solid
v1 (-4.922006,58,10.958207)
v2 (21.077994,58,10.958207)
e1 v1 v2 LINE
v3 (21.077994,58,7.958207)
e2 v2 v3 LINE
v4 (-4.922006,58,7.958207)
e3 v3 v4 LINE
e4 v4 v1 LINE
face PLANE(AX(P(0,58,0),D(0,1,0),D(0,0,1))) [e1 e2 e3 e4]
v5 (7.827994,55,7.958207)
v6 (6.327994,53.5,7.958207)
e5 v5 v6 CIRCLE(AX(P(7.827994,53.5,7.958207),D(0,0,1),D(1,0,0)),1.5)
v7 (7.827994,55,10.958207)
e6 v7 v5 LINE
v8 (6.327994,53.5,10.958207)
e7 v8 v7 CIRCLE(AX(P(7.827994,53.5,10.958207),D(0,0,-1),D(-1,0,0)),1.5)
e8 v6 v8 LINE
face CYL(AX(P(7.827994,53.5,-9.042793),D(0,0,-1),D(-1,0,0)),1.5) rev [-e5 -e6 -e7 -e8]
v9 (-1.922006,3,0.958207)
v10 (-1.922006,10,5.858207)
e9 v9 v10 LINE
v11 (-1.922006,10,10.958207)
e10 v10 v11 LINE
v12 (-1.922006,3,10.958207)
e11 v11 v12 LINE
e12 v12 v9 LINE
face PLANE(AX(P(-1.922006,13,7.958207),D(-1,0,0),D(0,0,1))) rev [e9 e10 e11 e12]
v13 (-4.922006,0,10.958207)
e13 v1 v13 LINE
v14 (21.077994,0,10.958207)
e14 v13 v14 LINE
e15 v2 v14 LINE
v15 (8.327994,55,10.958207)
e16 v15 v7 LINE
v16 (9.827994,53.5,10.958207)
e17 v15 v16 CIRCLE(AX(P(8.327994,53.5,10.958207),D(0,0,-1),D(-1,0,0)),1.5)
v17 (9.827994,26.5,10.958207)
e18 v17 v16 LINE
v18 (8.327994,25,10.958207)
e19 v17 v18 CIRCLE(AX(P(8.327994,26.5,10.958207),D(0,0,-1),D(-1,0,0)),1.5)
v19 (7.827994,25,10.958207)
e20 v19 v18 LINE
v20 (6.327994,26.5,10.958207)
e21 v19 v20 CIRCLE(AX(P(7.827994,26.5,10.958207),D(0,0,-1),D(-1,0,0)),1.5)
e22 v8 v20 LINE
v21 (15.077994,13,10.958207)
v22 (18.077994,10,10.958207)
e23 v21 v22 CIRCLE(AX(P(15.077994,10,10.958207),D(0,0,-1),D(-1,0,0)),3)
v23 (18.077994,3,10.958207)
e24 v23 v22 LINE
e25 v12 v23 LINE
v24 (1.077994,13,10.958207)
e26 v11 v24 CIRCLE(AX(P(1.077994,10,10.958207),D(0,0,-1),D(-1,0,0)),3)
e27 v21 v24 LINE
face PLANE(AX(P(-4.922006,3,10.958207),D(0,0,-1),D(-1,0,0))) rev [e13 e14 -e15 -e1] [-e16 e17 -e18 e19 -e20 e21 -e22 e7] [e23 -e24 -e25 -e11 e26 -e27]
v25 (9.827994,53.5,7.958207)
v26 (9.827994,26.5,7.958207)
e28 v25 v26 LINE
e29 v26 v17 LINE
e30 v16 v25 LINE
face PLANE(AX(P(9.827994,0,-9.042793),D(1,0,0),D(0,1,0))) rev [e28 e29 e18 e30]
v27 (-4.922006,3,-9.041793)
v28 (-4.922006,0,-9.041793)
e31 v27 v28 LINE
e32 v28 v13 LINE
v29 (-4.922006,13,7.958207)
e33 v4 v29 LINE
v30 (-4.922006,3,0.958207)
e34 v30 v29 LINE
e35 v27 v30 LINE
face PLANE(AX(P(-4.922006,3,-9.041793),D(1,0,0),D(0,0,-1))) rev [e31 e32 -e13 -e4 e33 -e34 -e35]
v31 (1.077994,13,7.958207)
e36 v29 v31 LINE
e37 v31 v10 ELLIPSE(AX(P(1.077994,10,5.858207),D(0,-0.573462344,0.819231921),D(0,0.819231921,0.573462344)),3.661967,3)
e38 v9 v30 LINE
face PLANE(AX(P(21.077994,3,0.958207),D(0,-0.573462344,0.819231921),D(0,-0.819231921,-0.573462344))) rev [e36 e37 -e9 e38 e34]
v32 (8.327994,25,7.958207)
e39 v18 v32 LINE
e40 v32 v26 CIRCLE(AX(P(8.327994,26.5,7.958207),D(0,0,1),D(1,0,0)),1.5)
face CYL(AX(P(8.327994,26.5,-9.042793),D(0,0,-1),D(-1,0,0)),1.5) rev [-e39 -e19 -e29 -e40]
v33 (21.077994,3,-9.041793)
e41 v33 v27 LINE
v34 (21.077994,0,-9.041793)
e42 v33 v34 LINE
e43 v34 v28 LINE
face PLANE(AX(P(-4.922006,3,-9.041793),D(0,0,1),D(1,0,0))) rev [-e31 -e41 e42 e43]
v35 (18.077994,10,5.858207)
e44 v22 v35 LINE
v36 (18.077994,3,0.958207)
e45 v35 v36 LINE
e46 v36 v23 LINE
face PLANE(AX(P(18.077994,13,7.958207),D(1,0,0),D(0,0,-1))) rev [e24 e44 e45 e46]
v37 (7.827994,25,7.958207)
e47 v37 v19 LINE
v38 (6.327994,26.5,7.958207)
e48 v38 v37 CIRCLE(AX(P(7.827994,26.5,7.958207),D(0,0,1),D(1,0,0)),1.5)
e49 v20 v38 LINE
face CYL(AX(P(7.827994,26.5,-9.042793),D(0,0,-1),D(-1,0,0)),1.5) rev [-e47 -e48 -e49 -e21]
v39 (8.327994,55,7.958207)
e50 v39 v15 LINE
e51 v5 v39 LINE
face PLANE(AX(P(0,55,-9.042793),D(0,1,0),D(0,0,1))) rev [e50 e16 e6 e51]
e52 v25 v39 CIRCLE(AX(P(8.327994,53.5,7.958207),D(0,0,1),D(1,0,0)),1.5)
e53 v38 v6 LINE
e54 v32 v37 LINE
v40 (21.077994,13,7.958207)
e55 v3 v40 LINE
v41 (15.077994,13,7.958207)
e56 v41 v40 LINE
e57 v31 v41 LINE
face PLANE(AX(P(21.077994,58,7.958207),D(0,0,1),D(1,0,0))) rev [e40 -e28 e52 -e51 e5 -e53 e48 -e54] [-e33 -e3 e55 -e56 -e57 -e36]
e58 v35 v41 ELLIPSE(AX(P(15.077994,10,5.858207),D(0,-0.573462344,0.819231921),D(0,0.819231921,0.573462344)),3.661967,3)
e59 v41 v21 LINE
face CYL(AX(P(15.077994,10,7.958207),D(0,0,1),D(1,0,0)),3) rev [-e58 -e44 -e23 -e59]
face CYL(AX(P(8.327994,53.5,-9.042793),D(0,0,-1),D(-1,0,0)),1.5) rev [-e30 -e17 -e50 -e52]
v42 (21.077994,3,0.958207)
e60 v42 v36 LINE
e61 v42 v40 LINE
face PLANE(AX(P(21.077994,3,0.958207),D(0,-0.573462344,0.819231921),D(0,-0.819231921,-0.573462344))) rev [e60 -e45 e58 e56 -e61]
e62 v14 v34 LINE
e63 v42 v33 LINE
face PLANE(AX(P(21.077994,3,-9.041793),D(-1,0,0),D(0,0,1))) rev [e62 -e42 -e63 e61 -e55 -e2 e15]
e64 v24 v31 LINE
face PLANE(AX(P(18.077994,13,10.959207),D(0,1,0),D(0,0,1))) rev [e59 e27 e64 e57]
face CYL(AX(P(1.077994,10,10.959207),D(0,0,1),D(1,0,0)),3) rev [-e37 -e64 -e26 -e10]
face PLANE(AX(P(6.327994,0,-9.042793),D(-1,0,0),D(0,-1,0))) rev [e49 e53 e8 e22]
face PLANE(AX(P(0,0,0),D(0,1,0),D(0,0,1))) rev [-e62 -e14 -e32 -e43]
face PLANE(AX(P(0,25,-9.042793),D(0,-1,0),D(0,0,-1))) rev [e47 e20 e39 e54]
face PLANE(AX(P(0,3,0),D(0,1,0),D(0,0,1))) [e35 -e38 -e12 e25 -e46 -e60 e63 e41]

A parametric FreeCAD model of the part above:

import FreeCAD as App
import Part
import Sketcher

V = App.Vector


def edges_at(feature, points):
    """Names of the edges that pass closest to the given points."""
    edges = feature.Shape.Edges
    near = lambda p: min(range(len(edges)), key=lambda i: edges[i].distToShape(Part.Vertex(*p))[0])
    return sorted({f"Edge{near(p) + 1}" for p in points})


def add_polygon(sketch, points):
    """Adds a closed chain of lines whose ends are joined by coincident constraints."""
    first, n = sketch.GeometryCount, len(points)
    for a, b in zip(points, points[1:] + points[:1]):
        sketch.addGeometry(Part.LineSegment(App.Vector(*a, 0), App.Vector(*b, 0)), False)
    for i in range(n):
        sketch.addConstraint(Sketcher.Constraint("Coincident", first + i, 2, first + (i + 1) % n, 1))

doc = App.newDocument("Part")
body = doc.addObject("PartDesign::Body", "Body")

sketch1 = body.newObject("Sketcher::SketchObject", "Sketch")
sketch1.AttachmentSupport = (doc.getObject("XZ_Plane"), [""])
sketch1.MapMode = "FlatFace"
add_polygon(sketch1, [(-5, -9), (-5, 11), (21, 11), (21, -9)])
sketch1.addConstraint(Sketcher.Constraint("Vertical", 0))
sketch1.addConstraint(Sketcher.Constraint("Horizontal", 1))
sketch1.addConstraint(Sketcher.Constraint("Vertical", 2))
sketch1.addConstraint(Sketcher.Constraint("Horizontal", 3))
sketch1.addConstraint(Sketcher.Constraint("DistanceX", 1, 1, 1, 2, 26.0))
sketch1.addConstraint(Sketcher.Constraint("DistanceY", 0, 1, 0, 2, 20.0))
sketch1.addConstraint(Sketcher.Constraint("DistanceX", 0, 2, -1, 1, 4.922006))
sketch1.addConstraint(Sketcher.Constraint("DistanceY", -1, 1, 0, 2, 10.958207))
pad1 = body.newObject("PartDesign::Pad", "Pad")
pad1.Profile = sketch1
pad1.Length = 3
pad1.Reversed = True

sketch2 = body.newObject("Sketcher::SketchObject", "Sketch001")
sketch2.AttachmentSupport = (doc.getObject("XZ_Plane"), [""])
sketch2.MapMode = "FlatFace"
sketch2.AttachmentOffset = App.Placement(V(0, 0, -3), App.Rotation())
add_polygon(sketch2, [(-4.9, 8), (-4.9, 11), (21.1, 11), (21.1, 8)])
sketch2.addConstraint(Sketcher.Constraint("Vertical", 0))
sketch2.addConstraint(Sketcher.Constraint("Horizontal", 1))
sketch2.addConstraint(Sketcher.Constraint("Vertical", 2))
sketch2.addConstraint(Sketcher.Constraint("Horizontal", 3))
sketch2.addConstraint(Sketcher.Constraint("DistanceX", 1, 1, 1, 2, 26.0))
sketch2.addConstraint(Sketcher.Constraint("DistanceY", 0, 1, 0, 2, 3.0))
sketch2.addConstraint(Sketcher.Constraint("DistanceX", 0, 2, -1, 1, 4.922006))
sketch2.addConstraint(Sketcher.Constraint("DistanceY", -1, 1, 0, 2, 10.958207))
pad2 = body.newObject("PartDesign::Pad", "Pad001")
pad2.Profile = sketch2
pad2.Length = 55
pad2.Reversed = True

sketch3 = body.newObject("Sketcher::SketchObject", "Sketch002")
sketch3.AttachmentSupport = (doc.getObject("XZ_Plane"), [""])
sketch3.MapMode = "FlatFace"
sketch3.AttachmentOffset = App.Placement(V(0, 0, -3), App.Rotation())
add_polygon(sketch3, [(18.1, 1), (18.1, 8), (21.1, 8), (21.1, 1)])
add_polygon(sketch3, [(-4.9, 1), (-4.9, 8), (-1.9, 8), (-1.9, 1)])
sketch3.addConstraint(Sketcher.Constraint("Vertical", 0))
sketch3.addConstraint(Sketcher.Constraint("Horizontal", 1))
sketch3.addConstraint(Sketcher.Constraint("Vertical", 2))
sketch3.addConstraint(Sketcher.Constraint("Horizontal", 3))
sketch3.addConstraint(Sketcher.Constraint("Vertical", 4))
sketch3.addConstraint(Sketcher.Constraint("Horizontal", 5))
sketch3.addConstraint(Sketcher.Constraint("Vertical", 6))
sketch3.addConstraint(Sketcher.Constraint("Horizontal", 7))
sketch3.addConstraint(Sketcher.Constraint("Horizontal", 1, 2, 4, 2))
sketch3.addConstraint(Sketcher.Constraint("Horizontal", 3, 2, 6, 2))
sketch3.addConstraint(Sketcher.Constraint("Equal", 3, 5))
sketch3.addConstraint(Sketcher.Constraint("DistanceX", 1, 1, 1, 2, 3.0))
sketch3.addConstraint(Sketcher.Constraint("DistanceY", 0, 1, 0, 2, 7.0))
sketch3.addConstraint(Sketcher.Constraint("DistanceX", 4, 2, 0, 2, 23.0))
sketch3.addConstraint(Sketcher.Constraint("DistanceX", -1, 1, 0, 2, 18.077994))
sketch3.addConstraint(Sketcher.Constraint("DistanceY", -1, 1, 0, 2, 7.958207))
pad3 = body.newObject("PartDesign::Pad", "Pad002")
pad3.Profile = sketch3
pad3.Length = 10
pad3.Reversed = True

sketch4 = body.newObject("Sketcher::SketchObject", "Sketch003")
sketch4.AttachmentSupport = (doc.getObject("YZ_Plane"), [""])
sketch4.MapMode = "FlatFace"
sketch4.AttachmentOffset = App.Placement(V(0, 0, -4.922006), App.Rotation())
add_polygon(sketch4, [(3, 1), (13, 8), (13, 1)])
sketch4.addConstraint(Sketcher.Constraint("Vertical", 1))
sketch4.addConstraint(Sketcher.Constraint("Horizontal", 2))
sketch4.addConstraint(Sketcher.Constraint("DistanceX", 2, 2, 2, 1, 10.0))
sketch4.addConstraint(Sketcher.Constraint("DistanceY", 1, 2, 1, 1, 7.0))
sketch4.addConstraint(Sketcher.Constraint("DistanceX", -1, 1, 0, 2, 13.0))
sketch4.addConstraint(Sketcher.Constraint("DistanceY", -1, 1, 0, 2, 7.958207))
pocket1 = body.newObject("PartDesign::Pocket", "Pocket")
pocket1.Profile = sketch4
pocket1.Type = "ThroughAll"
pocket1.Reversed = True

sketch5 = body.newObject("Sketcher::SketchObject", "Sketch004")
sketch5.AttachmentSupport = (doc.getObject("XY_Plane"), [""])
sketch5.MapMode = "FlatFace"
sketch5.AttachmentOffset = App.Placement(V(0, 0, 7.958207), App.Rotation())
add_polygon(sketch5, [(18, 13), (18, 3), (-2, 3), (-2, 13)])
sketch5.addConstraint(Sketcher.Constraint("Vertical", 0))
sketch5.addConstraint(Sketcher.Constraint("Horizontal", 1))
sketch5.addConstraint(Sketcher.Constraint("Vertical", 2))
sketch5.addConstraint(Sketcher.Constraint("Horizontal", 3))
sketch5.addConstraint(Sketcher.Constraint("DistanceX", 1, 2, 1, 1, 20.0))
sketch5.addConstraint(Sketcher.Constraint("DistanceY", 0, 2, 0, 1, 10.0))
sketch5.addConstraint(Sketcher.Constraint("DistanceY", -1, 1, 0, 2, 3.0))
sketch5.addConstraint(Sketcher.Constraint("DistanceX", -1, 1, 0, 2, 18.077994))
pocket2 = body.newObject("PartDesign::Pocket", "Pocket001")
pocket2.Profile = sketch5
pocket2.Type = "UpToFirst"
pocket2.Reversed = True
doc.recompute()

fillet = body.newObject("PartDesign::Fillet", "Fillet")
fillet.Base = (pocket2, edges_at(pocket2, [(18.078, 13, 9.458), (-1.922, 13, 9.458)]))
fillet.Radius = 3

sketch6 = body.newObject("Sketcher::SketchObject", "Sketch005")
sketch6.AttachmentSupport = (doc.getObject("XY_Plane"), [""])
sketch6.MapMode = "FlatFace"
sketch6.AttachmentOffset = App.Placement(V(0, 0, 10.958207), App.Rotation())
add_polygon(sketch6, [(6.3, 55), (6.3, 25), (8.1, 25), (8.1, 55)])
sketch6.addConstraint(Sketcher.Constraint("Vertical", 0))
sketch6.addConstraint(Sketcher.Constraint("Horizontal", 1))
sketch6.addConstraint(Sketcher.Constraint("Vertical", 2))
sketch6.addConstraint(Sketcher.Constraint("Horizontal", 3))
sketch6.addConstraint(Sketcher.Constraint("DistanceY", 0, 2, 0, 1, 30.0))
sketch6.addConstraint(Sketcher.Constraint("DistanceY", -1, 1, 0, 2, 25.0))
sketch6.addConstraint(Sketcher.Constraint("DistanceX", 1, 1, 1, 2, 1.75))
sketch6.addConstraint(Sketcher.Constraint("DistanceX", -1, 1, 0, 2, 6.327994))
pocket3 = body.newObject("PartDesign::Pocket", "Pocket002")
pocket3.Profile = sketch6
pocket3.Type = "UpToFirst"

sketch7 = body.newObject("Sketcher::SketchObject", "Sketch006")
sketch7.AttachmentSupport = (doc.getObject("XY_Plane"), [""])
sketch7.MapMode = "FlatFace"
sketch7.AttachmentOffset = App.Placement(V(0, 0, 10.958207), App.Rotation())
add_polygon(sketch7, [(8.1, 55), (8.1, 25), (9.8, 25), (9.8, 55)])
sketch7.addConstraint(Sketcher.Constraint("Vertical", 0))
sketch7.addConstraint(Sketcher.Constraint("Horizontal", 1))
sketch7.addConstraint(Sketcher.Constraint("Vertical", 2))
sketch7.addConstraint(Sketcher.Constraint("Horizontal", 3))
sketch7.addConstraint(Sketcher.Constraint("DistanceY", 0, 2, 0, 1, 30.0))
sketch7.addConstraint(Sketcher.Constraint("DistanceY", -1, 1, 0, 2, 25.0))
sketch7.addConstraint(Sketcher.Constraint("DistanceX", 1, 1, 1, 2, 1.75))
sketch7.addConstraint(Sketcher.Constraint("DistanceX", -1, 1, 0, 2, 8.077994))
pocket4 = body.newObject("PartDesign::Pocket", "Pocket003")
pocket4.Profile = sketch7
pocket4.Type = "UpToFirst"
doc.recompute()

fillet2 = body.newObject("PartDesign::Fillet", "Fillet001")
fillet2.Base = (pocket4, edges_at(pocket4, [
    (9.828, 25, 9.458),
    (6.328, 25, 9.458),
    (6.328, 55, 9.458),
    (9.828, 55, 9.458),
]))
fillet2.Radius = 1.5

doc.recompute()
